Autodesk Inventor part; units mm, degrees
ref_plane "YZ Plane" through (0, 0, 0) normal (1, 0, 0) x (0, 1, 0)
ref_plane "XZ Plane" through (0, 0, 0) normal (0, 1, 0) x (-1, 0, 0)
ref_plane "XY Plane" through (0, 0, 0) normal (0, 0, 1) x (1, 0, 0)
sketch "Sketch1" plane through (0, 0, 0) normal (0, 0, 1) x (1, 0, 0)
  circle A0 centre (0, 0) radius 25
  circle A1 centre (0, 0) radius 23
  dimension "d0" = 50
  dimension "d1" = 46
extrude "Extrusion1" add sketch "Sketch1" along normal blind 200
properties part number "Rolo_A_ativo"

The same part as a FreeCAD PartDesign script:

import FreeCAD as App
import Part
import Sketcher

V = App.Vector
Q = App.Units.Quantity

doc = App.newDocument("Part")
body = doc.addObject("PartDesign::Body", "Body")

# Sketch on XY plane
sketch1 = doc.addObject("Sketcher::SketchObject", "Sketch")
body.addObject(sketch1)
sketch1.AttachmentSupport = (doc.XY_Plane, [""])
sketch1.MapMode = "FlatFace"
sketch1.addGeometry(Part.Circle(V(0, 0, 0), V(0, 0, 1), 25), False)
sketch1.addGeometry(Part.Circle(V(0, 0, 0), V(0, 0, 1), 23), False)
sketch1.addConstraint(Sketcher.Constraint("Coincident", 0, 3, -1, 1))
sketch1.addConstraint(Sketcher.Constraint("Coincident", 1, 3, -1, 1))
sketch1.addConstraint(Sketcher.Constraint("Diameter", 0, Q("50 mm")))
sketch1.addConstraint(Sketcher.Constraint("Diameter", 1, Q("46 mm")))
pad1 = doc.addObject("PartDesign::Pad", "Pad")
body.addObject(pad1)
pad1.Profile = sketch1
pad1.Length = 200

doc.recompute()
